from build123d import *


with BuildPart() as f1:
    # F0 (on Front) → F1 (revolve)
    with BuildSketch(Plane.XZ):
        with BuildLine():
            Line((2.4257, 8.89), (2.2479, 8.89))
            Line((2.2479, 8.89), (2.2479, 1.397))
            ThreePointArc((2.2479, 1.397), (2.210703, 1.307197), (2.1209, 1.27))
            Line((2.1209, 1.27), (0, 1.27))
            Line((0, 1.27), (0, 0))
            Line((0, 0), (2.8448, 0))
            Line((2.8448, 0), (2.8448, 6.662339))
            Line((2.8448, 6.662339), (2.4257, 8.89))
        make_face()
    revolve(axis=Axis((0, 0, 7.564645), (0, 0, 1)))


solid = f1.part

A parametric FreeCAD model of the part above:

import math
import FreeCAD as App
import Part
import Sketcher
from FreeCAD import Vector
Q = App.Units.Quantity

doc = App.newDocument("Part")
params = doc.addObject("Spreadsheet::Sheet", "Params")
for row, (alias, value) in enumerate([
    ("sketch1_radius", "0.0049999 in"),
    ("sketch1_height", "0.05 in"),
    ("sketch1_width", "0.007 in"),
    ("sketch1_width2", "0.112 in"),
    ("revolution_angle", "360 deg"),
], start=1):
    params.set(f"A{row}", alias)
    params.set(f"B{row}", "=" + value)
    params.setAlias(f"B{row}", alias)

body = doc.addObject("PartDesign::Body", "Body")

# Sketch on XZ plane
sketch1 = doc.addObject("Sketcher::SketchObject", "Sketch")
body.addObject(sketch1)
sketch1.AttachmentSupport = (doc.XZ_Plane, [""])
sketch1.MapMode = "FlatFace"
sketch1.addGeometry([
    Part.LineSegment(Vector(2.43, 8.89, 0), Vector(2.25, 8.89, 0)),  # 0
    Part.LineSegment(Vector(2.25, 8.89, 0), Vector(2.25, 1.4, 0)),  # 1
    Part.ArcOfCircle(Part.Circle(Vector(2.12, 1.4, 0), Vector(0, 0, 1), 0.13), math.radians(-90), math.radians(0)),  # 2
    Part.LineSegment(Vector(2.12, 1.27, 0), Vector(0, 1.27, 0)),  # 3
    Part.LineSegment(Vector(0, 1.27, 0), Vector(0, 0, 0)),  # 4
    Part.LineSegment(Vector(0, 0, 0), Vector(2.84, 0, 0)),  # 5
    Part.LineSegment(Vector(2.84, 0, 0), Vector(2.84, 6.66, 0)),  # 6
    Part.LineSegment(Vector(2.84, 6.66, 0), Vector(2.43, 8.89, 0)),  # 7
], False)
sketch1.addConstraint([
    Sketcher.Constraint("Coincident", 0, 2, 1, 1),
    Sketcher.Constraint("Coincident", 1, 2, 2, 2),
    Sketcher.Constraint("Coincident", 2, 1, 3, 1),
    Sketcher.Constraint("Coincident", 3, 2, 4, 1),
    Sketcher.Constraint("Coincident", 4, 2, 5, 1),
    Sketcher.Constraint("Coincident", 5, 2, 6, 1),
    Sketcher.Constraint("Coincident", 6, 2, 7, 1),
    Sketcher.Constraint("Coincident", 7, 2, 0, 1),
    Sketcher.Constraint("Horizontal", 0),
    Sketcher.Constraint("Vertical", 1),
    Sketcher.Constraint("Horizontal", 3),
    Sketcher.Constraint("Vertical", 4),
    Sketcher.Constraint("Horizontal", 5),
    Sketcher.Constraint("Vertical", 6),
    Sketcher.Constraint("Coincident", 4, 2, -1, 1),
    Sketcher.Constraint("Horizontal", 2, 3, 1, 2),
    Sketcher.Constraint("Radius", 2, Q("0.0049999 in")),
    Sketcher.Constraint("DistanceY", 4, 2, 4, 1, Q("0.05 in")),
    Sketcher.Constraint("DistanceY", 2, 1, 0, 2, Q("0.3 in")),
    Sketcher.Constraint("DistanceX", 0, 2, 0, 1, Q("0.007 in")),
    Sketcher.Constraint("DistanceX", 5, 1, 5, 2, Q("0.112 in")),
    Sketcher.Constraint("DistanceX", 3, 2, 3, 1, Q("0.0835 in")),
    Sketcher.Constraint("DistanceX", 2, 1, 1, 2, Q("0.005 in")),
    Sketcher.Constraint("DistanceY", 6, 1, 6, 2, 6.662339),
])
sketch1.setExpression("Constraints[16]", "Params.sketch1_radius")
sketch1.setExpression("Constraints[17]", "Params.sketch1_height")
sketch1.setExpression("Constraints[19]", "Params.sketch1_width")
sketch1.setExpression("Constraints[20]", "Params.sketch1_width2")
revolution = doc.addObject("PartDesign::Revolution", "Revolution")
body.addObject(revolution)
revolution.Profile = sketch1
revolution.ReferenceAxis = (sketch1, ["V_Axis"])
revolution.setExpression("Angle", "Params.revolution_angle")

doc.recompute()
